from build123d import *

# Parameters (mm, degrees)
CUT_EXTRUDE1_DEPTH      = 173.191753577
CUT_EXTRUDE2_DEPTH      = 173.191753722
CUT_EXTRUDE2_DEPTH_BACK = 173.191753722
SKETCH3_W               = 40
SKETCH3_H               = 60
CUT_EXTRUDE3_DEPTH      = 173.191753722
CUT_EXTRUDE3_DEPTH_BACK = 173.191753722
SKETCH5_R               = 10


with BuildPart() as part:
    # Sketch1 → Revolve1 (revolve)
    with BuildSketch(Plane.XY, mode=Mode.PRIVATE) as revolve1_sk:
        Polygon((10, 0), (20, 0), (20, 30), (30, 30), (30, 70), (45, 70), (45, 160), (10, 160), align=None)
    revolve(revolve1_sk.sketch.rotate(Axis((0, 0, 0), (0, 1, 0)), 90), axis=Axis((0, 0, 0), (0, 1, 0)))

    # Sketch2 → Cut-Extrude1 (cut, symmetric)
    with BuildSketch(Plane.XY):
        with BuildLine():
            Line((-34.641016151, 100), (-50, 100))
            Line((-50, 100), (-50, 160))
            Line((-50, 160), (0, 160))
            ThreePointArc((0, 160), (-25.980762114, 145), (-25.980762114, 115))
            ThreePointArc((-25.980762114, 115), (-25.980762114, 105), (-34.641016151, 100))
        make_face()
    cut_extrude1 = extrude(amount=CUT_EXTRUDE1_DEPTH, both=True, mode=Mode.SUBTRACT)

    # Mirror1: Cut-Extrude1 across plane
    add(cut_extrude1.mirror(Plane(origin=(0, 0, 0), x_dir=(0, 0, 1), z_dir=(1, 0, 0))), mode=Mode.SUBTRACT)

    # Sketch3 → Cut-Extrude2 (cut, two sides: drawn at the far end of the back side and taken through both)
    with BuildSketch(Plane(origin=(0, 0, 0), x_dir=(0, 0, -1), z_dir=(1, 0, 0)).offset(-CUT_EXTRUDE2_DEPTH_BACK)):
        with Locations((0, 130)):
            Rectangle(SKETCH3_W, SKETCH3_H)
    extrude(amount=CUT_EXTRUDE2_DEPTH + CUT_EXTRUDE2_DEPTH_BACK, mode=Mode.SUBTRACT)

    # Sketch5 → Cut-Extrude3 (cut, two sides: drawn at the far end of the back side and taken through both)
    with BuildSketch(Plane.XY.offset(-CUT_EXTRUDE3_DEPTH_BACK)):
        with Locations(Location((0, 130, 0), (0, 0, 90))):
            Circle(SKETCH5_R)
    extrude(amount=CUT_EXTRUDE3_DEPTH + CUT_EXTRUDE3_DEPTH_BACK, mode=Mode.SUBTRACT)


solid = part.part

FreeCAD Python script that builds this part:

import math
import FreeCAD as App
import Part
import Sketcher

V = App.Vector

doc = App.newDocument("Part")
body = doc.addObject("PartDesign::Body", "Body")

sketch1 = doc.addObject("Sketcher::SketchObject", "Sketch")
body.addObject(sketch1)
sketch1.AttachmentSupport = (doc.XY_Plane, [""])
sketch1.MapMode = "FlatFace"
sketch1.addGeometry(Part.LineSegment(V(10, 0, 0), V(20, 0, 0)), False)
sketch1.addGeometry(Part.LineSegment(V(20, 0, 0), V(20, 30, 0)), False)
sketch1.addGeometry(Part.LineSegment(V(20, 30, 0), V(30, 30, 0)), False)
sketch1.addGeometry(Part.LineSegment(V(30, 30, 0), V(30, 70, 0)), False)
sketch1.addGeometry(Part.LineSegment(V(30, 70, 0), V(45, 70, 0)), False)
sketch1.addGeometry(Part.LineSegment(V(45, 70, 0), V(45, 160, 0)), False)
sketch1.addGeometry(Part.LineSegment(V(45, 160, 0), V(10, 160, 0)), False)
sketch1.addGeometry(Part.LineSegment(V(10, 160, 0), V(10, 0, 0)), False)
sketch1.addConstraint(Sketcher.Constraint("Coincident", 0, 2, 1, 1))
sketch1.addConstraint(Sketcher.Constraint("Coincident", 1, 2, 2, 1))
sketch1.addConstraint(Sketcher.Constraint("Coincident", 2, 2, 3, 1))
sketch1.addConstraint(Sketcher.Constraint("Coincident", 3, 2, 4, 1))
sketch1.addConstraint(Sketcher.Constraint("Coincident", 4, 2, 5, 1))
sketch1.addConstraint(Sketcher.Constraint("Coincident", 5, 2, 6, 1))
sketch1.addConstraint(Sketcher.Constraint("Coincident", 6, 2, 7, 1))
sketch1.addConstraint(Sketcher.Constraint("Coincident", 7, 2, 0, 1))
sketch1.addConstraint(Sketcher.Constraint("Horizontal", 0))
sketch1.addConstraint(Sketcher.Constraint("Vertical", 1))
sketch1.addConstraint(Sketcher.Constraint("Horizontal", 2))
sketch1.addConstraint(Sketcher.Constraint("Vertical", 3))
sketch1.addConstraint(Sketcher.Constraint("Horizontal", 4))
sketch1.addConstraint(Sketcher.Constraint("Vertical", 5))
sketch1.addConstraint(Sketcher.Constraint("Horizontal", 6))
sketch1.addConstraint(Sketcher.Constraint("Vertical", 7))
sketch1.addConstraint(Sketcher.Constraint("PointOnObject", 0, 2, -1))
sketch1.addConstraint(Sketcher.Constraint("Equal", 0, 2))
sketch1.addConstraint(Sketcher.Constraint("DistanceX", 0, 1, 0, 2, 10.0))
sketch1.addConstraint(Sketcher.Constraint("DistanceX", 4, 1, 4, 2, 15.0))
sketch1.addConstraint(Sketcher.Constraint("DistanceY", 1, 1, 1, 2, 30.0))
sketch1.addConstraint(Sketcher.Constraint("DistanceY", 3, 1, 3, 2, 40.0))
sketch1.addConstraint(Sketcher.Constraint("DistanceY", 5, 1, 5, 2, 90.0))
sketch1.addConstraint(Sketcher.Constraint("DistanceX", -1, 1, 0, 2, 20.0))
revolution = doc.addObject("PartDesign::Revolution", "Revolution")
body.addObject(revolution)
revolution.Profile = sketch1
revolution.ReferenceAxis = (sketch1, ["V_Axis"])
revolution.Angle = 360

sketch2 = doc.addObject("Sketcher::SketchObject", "Sketch001")
body.addObject(sketch2)
sketch2.AttachmentSupport = (doc.XY_Plane, [""])
sketch2.MapMode = "FlatFace"
sketch2.addGeometry(Part.LineSegment(V(-50, 100, 0), V(-34.641016, 100, 0)), False)
sketch2.addGeometry(Part.ArcOfCircle(Part.Circle(V(-34.641016, 110, 0), V(0, 0, 1), 10), math.radians(-90), math.radians(30)), False)
sketch2.addGeometry(Part.ArcOfCircle(Part.Circle(V(0, 130, 0), V(0, 0, 1), 30), math.radians(90), math.radians(210)), False)
sketch2.addGeometry(Part.LineSegment(V(0, 160, 0), V(-50, 160, 0)), False)
sketch2.addGeometry(Part.LineSegment(V(-50, 160, 0), V(-50, 100, 0)), False)
sketch2.addConstraint(Sketcher.Constraint("Tangent", 0, 2, 1, 1))
sketch2.addConstraint(Sketcher.Constraint("Tangent", 1, 2, 2, 2))
sketch2.addConstraint(Sketcher.Constraint("Tangent", 2, 1, 3, 1))
sketch2.addConstraint(Sketcher.Constraint("Coincident", 3, 2, 4, 1))
sketch2.addConstraint(Sketcher.Constraint("Coincident", 4, 2, 0, 1))
sketch2.addConstraint(Sketcher.Constraint("Horizontal", 0))
sketch2.addConstraint(Sketcher.Constraint("Horizontal", 3))
sketch2.addConstraint(Sketcher.Constraint("Vertical", 4))
sketch2.addConstraint(Sketcher.Constraint("PointOnObject", 2, 3, -2))
sketch2.addConstraint(Sketcher.Constraint("Radius", 1, 10.0))
sketch2.addConstraint(Sketcher.Constraint("Radius", 2, 30.0))
sketch2.addConstraint(Sketcher.Constraint("DistanceX", 3, 2, 3, 1, 50.0))
sketch2.addConstraint(Sketcher.Constraint("DistanceY", 4, 2, 4, 1, 60.0))
sketch2.addConstraint(Sketcher.Constraint("DistanceY", -1, 1, 1, 3, 110.0))
pocket1 = doc.addObject("PartDesign::Pocket", "Pocket")
body.addObject(pocket1)
pocket1.Profile = sketch2
pocket1.Length = 346.383507
pocket1.Midplane = True
doc.recompute()

mirrored = doc.addObject("PartDesign::Mirrored", "Mirrored")
body.addObject(mirrored)
mirrored.Originals = [pocket1]
mirrored.MirrorPlane = (doc.YZ_Plane, [""])
body.Tip = mirrored

sketch3 = doc.addObject("Sketcher::SketchObject", "Sketch002")
body.addObject(sketch3)
sketch3.AttachmentSupport = (doc.YZ_Plane, [""])
sketch3.MapMode = "FlatFace"
sketch3.addGeometry(Part.LineSegment(V(160, 20, 0), V(100, 20, 0)), False)
sketch3.addGeometry(Part.LineSegment(V(100, 20, 0), V(100, -20, 0)), False)
sketch3.addGeometry(Part.LineSegment(V(100, -20, 0), V(160, -20, 0)), False)
sketch3.addGeometry(Part.LineSegment(V(160, -20, 0), V(160, 20, 0)), False)
sketch3.addConstraint(Sketcher.Constraint("Coincident", 0, 2, 1, 1))
sketch3.addConstraint(Sketcher.Constraint("Coincident", 1, 2, 2, 1))
sketch3.addConstraint(Sketcher.Constraint("Coincident", 2, 2, 3, 1))
sketch3.addConstraint(Sketcher.Constraint("Coincident", 3, 2, 0, 1))
sketch3.addConstraint(Sketcher.Constraint("Horizontal", 0))
sketch3.addConstraint(Sketcher.Constraint("Vertical", 1))
sketch3.addConstraint(Sketcher.Constraint("Horizontal", 2))
sketch3.addConstraint(Sketcher.Constraint("Vertical", 3))
sketch3.addConstraint(Sketcher.Constraint("DistanceX", 0, 2, 0, 1, 60.0))
sketch3.addConstraint(Sketcher.Constraint("DistanceY", 1, 2, 1, 1, 40.0))
sketch3.addConstraint(Sketcher.Constraint("DistanceX", -1, 1, 0, 2, 100.0))
sketch3.addConstraint(Sketcher.Constraint("DistanceY", -1, 1, 0, 2, 20.0))
pocket2 = doc.addObject("PartDesign::Pocket", "Pocket001")
body.addObject(pocket2)
pocket2.Profile = sketch3
pocket2.Type = "ThroughAll"
pocket2.Midplane = True

sketch4 = doc.addObject("Sketcher::SketchObject", "Sketch003")
body.addObject(sketch4)
sketch4.AttachmentSupport = (doc.XY_Plane, [""])
sketch4.MapMode = "FlatFace"
sketch4.addGeometry(Part.Circle(V(0, 130, 0), V(0, 0, 1), 10), False)
sketch4.addConstraint(Sketcher.Constraint("PointOnObject", 0, 3, -2))
sketch4.addConstraint(Sketcher.Constraint("Diameter", 0, 20.0))
sketch4.addConstraint(Sketcher.Constraint("DistanceY", -1, 1, 0, 3, 130.0))
pocket3 = doc.addObject("PartDesign::Pocket", "Pocket002")
body.addObject(pocket3)
pocket3.Profile = sketch4
pocket3.Type = "ThroughAll"
pocket3.Midplane = True

doc.recompute()
